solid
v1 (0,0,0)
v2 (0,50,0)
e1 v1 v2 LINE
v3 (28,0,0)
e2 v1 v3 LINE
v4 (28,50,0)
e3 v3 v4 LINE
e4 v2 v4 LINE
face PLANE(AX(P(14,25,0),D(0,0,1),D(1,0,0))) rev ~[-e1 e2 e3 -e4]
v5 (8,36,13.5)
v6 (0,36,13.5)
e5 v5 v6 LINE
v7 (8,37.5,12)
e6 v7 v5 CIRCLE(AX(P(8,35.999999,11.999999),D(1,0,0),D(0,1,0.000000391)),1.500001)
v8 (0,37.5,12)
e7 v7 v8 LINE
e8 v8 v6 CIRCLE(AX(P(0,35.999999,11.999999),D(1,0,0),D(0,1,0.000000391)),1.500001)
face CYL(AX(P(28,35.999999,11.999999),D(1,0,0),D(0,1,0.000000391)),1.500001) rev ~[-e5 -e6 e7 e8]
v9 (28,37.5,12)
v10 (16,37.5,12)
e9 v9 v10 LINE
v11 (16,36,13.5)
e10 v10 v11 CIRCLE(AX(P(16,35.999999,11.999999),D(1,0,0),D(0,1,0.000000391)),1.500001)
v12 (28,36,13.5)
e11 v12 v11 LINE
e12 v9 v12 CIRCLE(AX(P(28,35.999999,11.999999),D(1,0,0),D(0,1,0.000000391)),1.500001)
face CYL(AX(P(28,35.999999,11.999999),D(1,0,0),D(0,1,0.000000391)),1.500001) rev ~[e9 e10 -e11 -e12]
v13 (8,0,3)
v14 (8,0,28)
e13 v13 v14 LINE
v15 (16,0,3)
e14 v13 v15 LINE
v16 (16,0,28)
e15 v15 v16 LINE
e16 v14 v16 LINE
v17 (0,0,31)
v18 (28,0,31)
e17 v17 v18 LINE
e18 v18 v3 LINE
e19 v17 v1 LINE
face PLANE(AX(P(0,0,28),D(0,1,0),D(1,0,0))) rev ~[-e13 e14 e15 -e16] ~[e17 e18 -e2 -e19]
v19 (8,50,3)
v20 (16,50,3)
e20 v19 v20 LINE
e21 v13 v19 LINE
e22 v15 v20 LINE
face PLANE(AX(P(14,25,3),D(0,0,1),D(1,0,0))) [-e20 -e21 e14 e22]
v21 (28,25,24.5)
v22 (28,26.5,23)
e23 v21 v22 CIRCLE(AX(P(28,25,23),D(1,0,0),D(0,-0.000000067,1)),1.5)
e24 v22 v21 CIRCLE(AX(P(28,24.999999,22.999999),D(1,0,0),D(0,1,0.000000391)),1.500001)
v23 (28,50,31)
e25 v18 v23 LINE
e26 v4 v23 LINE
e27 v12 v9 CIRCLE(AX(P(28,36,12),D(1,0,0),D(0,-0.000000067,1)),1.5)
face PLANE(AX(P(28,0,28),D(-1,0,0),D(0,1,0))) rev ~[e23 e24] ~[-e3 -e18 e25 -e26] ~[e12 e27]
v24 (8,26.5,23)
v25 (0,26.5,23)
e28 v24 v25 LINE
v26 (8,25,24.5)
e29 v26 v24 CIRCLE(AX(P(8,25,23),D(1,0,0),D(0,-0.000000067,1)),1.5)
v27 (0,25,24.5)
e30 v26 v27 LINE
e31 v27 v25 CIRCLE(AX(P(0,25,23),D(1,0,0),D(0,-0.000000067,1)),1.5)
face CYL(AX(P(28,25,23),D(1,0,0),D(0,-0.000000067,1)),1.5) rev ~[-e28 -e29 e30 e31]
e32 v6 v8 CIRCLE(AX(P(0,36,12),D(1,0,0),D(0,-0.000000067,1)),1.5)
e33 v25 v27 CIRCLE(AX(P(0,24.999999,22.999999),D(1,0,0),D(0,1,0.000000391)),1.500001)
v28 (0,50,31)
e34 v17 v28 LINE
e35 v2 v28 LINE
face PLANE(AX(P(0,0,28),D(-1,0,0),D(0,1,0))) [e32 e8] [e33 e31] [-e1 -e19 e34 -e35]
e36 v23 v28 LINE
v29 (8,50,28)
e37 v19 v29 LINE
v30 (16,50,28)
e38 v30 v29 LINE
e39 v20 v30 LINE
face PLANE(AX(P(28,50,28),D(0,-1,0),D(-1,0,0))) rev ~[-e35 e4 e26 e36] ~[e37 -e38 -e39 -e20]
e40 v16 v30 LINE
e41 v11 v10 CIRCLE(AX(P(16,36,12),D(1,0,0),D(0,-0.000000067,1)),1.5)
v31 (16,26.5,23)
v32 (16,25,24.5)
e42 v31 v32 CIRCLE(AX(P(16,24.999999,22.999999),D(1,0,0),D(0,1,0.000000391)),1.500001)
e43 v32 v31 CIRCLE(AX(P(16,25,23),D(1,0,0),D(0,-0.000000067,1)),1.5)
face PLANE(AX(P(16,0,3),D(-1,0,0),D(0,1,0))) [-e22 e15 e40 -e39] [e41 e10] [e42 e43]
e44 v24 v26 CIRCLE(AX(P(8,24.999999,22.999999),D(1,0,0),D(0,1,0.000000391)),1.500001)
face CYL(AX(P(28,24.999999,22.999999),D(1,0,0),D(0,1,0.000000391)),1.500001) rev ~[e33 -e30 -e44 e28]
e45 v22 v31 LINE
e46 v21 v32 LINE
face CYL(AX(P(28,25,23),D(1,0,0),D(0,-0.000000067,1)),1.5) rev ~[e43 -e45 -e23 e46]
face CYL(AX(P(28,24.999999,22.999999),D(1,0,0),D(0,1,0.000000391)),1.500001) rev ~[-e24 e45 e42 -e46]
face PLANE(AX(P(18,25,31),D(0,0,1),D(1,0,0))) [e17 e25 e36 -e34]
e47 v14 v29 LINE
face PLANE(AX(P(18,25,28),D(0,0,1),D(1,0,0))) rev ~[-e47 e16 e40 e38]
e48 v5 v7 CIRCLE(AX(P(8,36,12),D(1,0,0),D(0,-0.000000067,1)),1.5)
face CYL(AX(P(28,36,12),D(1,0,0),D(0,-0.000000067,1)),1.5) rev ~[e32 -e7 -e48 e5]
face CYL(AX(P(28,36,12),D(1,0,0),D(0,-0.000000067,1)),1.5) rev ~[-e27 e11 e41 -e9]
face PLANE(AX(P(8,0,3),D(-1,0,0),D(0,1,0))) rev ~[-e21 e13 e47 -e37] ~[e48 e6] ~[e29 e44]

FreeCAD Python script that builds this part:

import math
import FreeCAD as App
import Part
import Sketcher

V = App.Vector
Q = App.Units.Quantity

doc = App.newDocument("Part")
body = doc.addObject("PartDesign::Body", "Body")

# Sketch on XY plane
sketch1 = body.newObject("Sketcher::SketchObject", "Sketch")
sketch1.AttachmentSupport = (doc.getObject("XY_Plane"), [""])
sketch1.MapMode = "FlatFace"
sketch1.addGeometry(Part.LineSegment(V(0, 50, 0), V(0, 0, 0)), False)
sketch1.addGeometry(Part.LineSegment(V(0, 0, 0), V(28, 0, 0)), False)
sketch1.addGeometry(Part.LineSegment(V(28, 0, 0), V(28, 50, 0)), False)
sketch1.addGeometry(Part.LineSegment(V(28, 50, 0), V(0, 50, 0)), False)
sketch1.addConstraint(Sketcher.Constraint("Coincident", 0, 2, 1, 1))
sketch1.addConstraint(Sketcher.Constraint("Coincident", 1, 2, 2, 1))
sketch1.addConstraint(Sketcher.Constraint("Coincident", 2, 2, 3, 1))
sketch1.addConstraint(Sketcher.Constraint("Coincident", 3, 2, 0, 1))
sketch1.addConstraint(Sketcher.Constraint("Vertical", 0))
sketch1.addConstraint(Sketcher.Constraint("Horizontal", 1))
sketch1.addConstraint(Sketcher.Constraint("Vertical", 2))
sketch1.addConstraint(Sketcher.Constraint("Horizontal", 3))
sketch1.addConstraint(Sketcher.Constraint("Coincident", 0, 2, -1, 1))
sketch1.addConstraint(Sketcher.Constraint("DistanceX", 1, 1, 1, 2, Q("28 mm")))
sketch1.addConstraint(Sketcher.Constraint("DistanceY", 0, 2, 0, 1, Q("50 mm")))
pad1 = body.newObject("PartDesign::Pad", "Pad")
pad1.Profile = sketch1
pad1.Length = 3

# Sketch on XY plane
sketch2 = body.newObject("Sketcher::SketchObject", "Sketch001")
sketch2.AttachmentSupport = (doc.getObject("XY_Plane"), [""])
sketch2.MapMode = "FlatFace"
sketch2.AttachmentOffset = App.Placement(V(0, 0, 3), App.Rotation())
sketch2.addGeometry(Part.LineSegment(V(0, 50, 0), V(0, 0, 0)), False)
sketch2.addGeometry(Part.LineSegment(V(0, 0, 0), V(8, 0, 0)), False)
sketch2.addGeometry(Part.LineSegment(V(8, 0, 0), V(8, 50, 0)), False)
sketch2.addGeometry(Part.LineSegment(V(8, 50, 0), V(0, 50, 0)), False)
sketch2.addGeometry(Part.LineSegment(V(16, 50, 0), V(16, 0, 0)), False)
sketch2.addGeometry(Part.LineSegment(V(16, 0, 0), V(28, 0, 0)), False)
sketch2.addGeometry(Part.LineSegment(V(28, 0, 0), V(28, 50, 0)), False)
sketch2.addGeometry(Part.LineSegment(V(28, 50, 0), V(16, 50, 0)), False)
sketch2.addConstraint(Sketcher.Constraint("Coincident", 0, 2, 1, 1))
sketch2.addConstraint(Sketcher.Constraint("Coincident", 1, 2, 2, 1))
sketch2.addConstraint(Sketcher.Constraint("Coincident", 2, 2, 3, 1))
sketch2.addConstraint(Sketcher.Constraint("Coincident", 3, 2, 0, 1))
sketch2.addConstraint(Sketcher.Constraint("Coincident", 4, 2, 5, 1))
sketch2.addConstraint(Sketcher.Constraint("Coincident", 5, 2, 6, 1))
sketch2.addConstraint(Sketcher.Constraint("Coincident", 6, 2, 7, 1))
sketch2.addConstraint(Sketcher.Constraint("Coincident", 7, 2, 4, 1))
sketch2.addConstraint(Sketcher.Constraint("Vertical", 0))
sketch2.addConstraint(Sketcher.Constraint("Horizontal", 1))
sketch2.addConstraint(Sketcher.Constraint("Vertical", 2))
sketch2.addConstraint(Sketcher.Constraint("Horizontal", 3))
sketch2.addConstraint(Sketcher.Constraint("Vertical", 4))
sketch2.addConstraint(Sketcher.Constraint("Horizontal", 5))
sketch2.addConstraint(Sketcher.Constraint("Vertical", 6))
sketch2.addConstraint(Sketcher.Constraint("Horizontal", 7))
sketch2.addConstraint(Sketcher.Constraint("Coincident", 0, 2, -1, 1))
sketch2.addConstraint(Sketcher.Constraint("PointOnObject", 4, 2, -1))
sketch2.addConstraint(Sketcher.Constraint("Horizontal", 3, 2, 6, 2))
sketch2.addConstraint(Sketcher.Constraint("DistanceX", 1, 1, 1, 2, Q("8 mm")))
sketch2.addConstraint(Sketcher.Constraint("DistanceX", 5, 1, 5, 2, Q("12 mm")))
sketch2.addConstraint(Sketcher.Constraint("DistanceY", 0, 2, 0, 1, Q("50 mm")))
sketch2.addConstraint(Sketcher.Constraint("DistanceX", -1, 1, 4, 2, Q("16 mm")))
pad2 = body.newObject("PartDesign::Pad", "Pad001")
pad2.Profile = sketch2
pad2.Length = 25

# Sketch on XY plane
sketch3 = body.newObject("Sketcher::SketchObject", "Sketch002")
sketch3.AttachmentSupport = (doc.getObject("XY_Plane"), [""])
sketch3.MapMode = "FlatFace"
sketch3.AttachmentOffset = App.Placement(V(0, 0, 28), App.Rotation())
sketch3.addGeometry(Part.LineSegment(V(28, 0, 0), V(28, 50, 0)), False)
sketch3.addGeometry(Part.LineSegment(V(28, 50, 0), V(0, 50, 0)), False)
sketch3.addGeometry(Part.LineSegment(V(0, 50, 0), V(0, 0, 0)), False)
sketch3.addGeometry(Part.LineSegment(V(0, 0, 0), V(28, 0, 0)), False)
sketch3.addConstraint(Sketcher.Constraint("Coincident", 0, 2, 1, 1))
sketch3.addConstraint(Sketcher.Constraint("Coincident", 1, 2, 2, 1))
sketch3.addConstraint(Sketcher.Constraint("Coincident", 2, 2, 3, 1))
sketch3.addConstraint(Sketcher.Constraint("Coincident", 3, 2, 0, 1))
sketch3.addConstraint(Sketcher.Constraint("Vertical", 0))
sketch3.addConstraint(Sketcher.Constraint("Horizontal", 1))
sketch3.addConstraint(Sketcher.Constraint("Vertical", 2))
sketch3.addConstraint(Sketcher.Constraint("Horizontal", 3))
sketch3.addConstraint(Sketcher.Constraint("Coincident", 2, 2, -1, 1))
sketch3.addConstraint(Sketcher.Constraint("DistanceX", 1, 2, 1, 1, Q("28 mm")))
sketch3.addConstraint(Sketcher.Constraint("DistanceY", 0, 1, 0, 2, Q("50 mm")))
pad3 = body.newObject("PartDesign::Pad", "Pad002")
pad3.Profile = sketch3
pad3.Length = 3

# Sketch on YZ plane
sketch4 = body.newObject("Sketcher::SketchObject", "Sketch003")
sketch4.AttachmentSupport = (doc.getObject("YZ_Plane"), [""])
sketch4.MapMode = "FlatFace"
sketch4.AttachmentOffset = App.Placement(V(0, 0, 28), App.Rotation())
sketch4.addGeometry(Part.ArcOfCircle(Part.Circle(V(25, 23, 0), V(0, 0, 1), 1.5), math.radians(0), math.radians(90)), False)
sketch4.addGeometry(Part.ArcOfCircle(Part.Circle(V(25, 23, 0), V(0, 0, 1), 1.5), math.radians(90), math.radians(360)), False)
sketch4.addGeometry(Part.ArcOfCircle(Part.Circle(V(36, 12, 0), V(0, 0, 1), 1.5), math.radians(0), math.radians(90)), False)
sketch4.addGeometry(Part.ArcOfCircle(Part.Circle(V(36, 12, 0), V(0, 0, 1), 1.5), math.radians(90), math.radians(360)), False)
sketch4.addConstraint(Sketcher.Constraint("Tangent", 0, 1, 1, 2))
sketch4.addConstraint(Sketcher.Constraint("Coincident", 1, 1, 0, 2))
sketch4.addConstraint(Sketcher.Constraint("Tangent", 2, 1, 3, 2))
sketch4.addConstraint(Sketcher.Constraint("Coincident", 3, 1, 2, 2))
sketch4.addConstraint(Sketcher.Constraint("Equal", 1, 2))
sketch4.addConstraint(Sketcher.Constraint("Horizontal", 1, 3, 0, 1))
sketch4.addConstraint(Sketcher.Constraint("Horizontal", 3, 3, 2, 1))
sketch4.addConstraint(Sketcher.Constraint("Vertical", 0, 3, 1, 1))
sketch4.addConstraint(Sketcher.Constraint("Vertical", 2, 3, 3, 1))
sketch4.addConstraint(Sketcher.Constraint("Radius", 0, Q("1.500001 mm")))
sketch4.addConstraint(Sketcher.Constraint("DistanceX", -1, 1, 0, 3, Q("24.999999 mm")))
sketch4.addConstraint(Sketcher.Constraint("DistanceY", -1, 1, 0, 3, Q("22.999999 mm")))
sketch4.addConstraint(Sketcher.Constraint("DistanceX", -1, 1, 2, 3, Q("35.999999 mm")))
sketch4.addConstraint(Sketcher.Constraint("DistanceY", -1, 1, 2, 3, Q("11.999999 mm")))
pocket1 = body.newObject("PartDesign::Pocket", "Pocket")
pocket1.Profile = sketch4
pocket1.Length = 67.4

doc.recompute()
